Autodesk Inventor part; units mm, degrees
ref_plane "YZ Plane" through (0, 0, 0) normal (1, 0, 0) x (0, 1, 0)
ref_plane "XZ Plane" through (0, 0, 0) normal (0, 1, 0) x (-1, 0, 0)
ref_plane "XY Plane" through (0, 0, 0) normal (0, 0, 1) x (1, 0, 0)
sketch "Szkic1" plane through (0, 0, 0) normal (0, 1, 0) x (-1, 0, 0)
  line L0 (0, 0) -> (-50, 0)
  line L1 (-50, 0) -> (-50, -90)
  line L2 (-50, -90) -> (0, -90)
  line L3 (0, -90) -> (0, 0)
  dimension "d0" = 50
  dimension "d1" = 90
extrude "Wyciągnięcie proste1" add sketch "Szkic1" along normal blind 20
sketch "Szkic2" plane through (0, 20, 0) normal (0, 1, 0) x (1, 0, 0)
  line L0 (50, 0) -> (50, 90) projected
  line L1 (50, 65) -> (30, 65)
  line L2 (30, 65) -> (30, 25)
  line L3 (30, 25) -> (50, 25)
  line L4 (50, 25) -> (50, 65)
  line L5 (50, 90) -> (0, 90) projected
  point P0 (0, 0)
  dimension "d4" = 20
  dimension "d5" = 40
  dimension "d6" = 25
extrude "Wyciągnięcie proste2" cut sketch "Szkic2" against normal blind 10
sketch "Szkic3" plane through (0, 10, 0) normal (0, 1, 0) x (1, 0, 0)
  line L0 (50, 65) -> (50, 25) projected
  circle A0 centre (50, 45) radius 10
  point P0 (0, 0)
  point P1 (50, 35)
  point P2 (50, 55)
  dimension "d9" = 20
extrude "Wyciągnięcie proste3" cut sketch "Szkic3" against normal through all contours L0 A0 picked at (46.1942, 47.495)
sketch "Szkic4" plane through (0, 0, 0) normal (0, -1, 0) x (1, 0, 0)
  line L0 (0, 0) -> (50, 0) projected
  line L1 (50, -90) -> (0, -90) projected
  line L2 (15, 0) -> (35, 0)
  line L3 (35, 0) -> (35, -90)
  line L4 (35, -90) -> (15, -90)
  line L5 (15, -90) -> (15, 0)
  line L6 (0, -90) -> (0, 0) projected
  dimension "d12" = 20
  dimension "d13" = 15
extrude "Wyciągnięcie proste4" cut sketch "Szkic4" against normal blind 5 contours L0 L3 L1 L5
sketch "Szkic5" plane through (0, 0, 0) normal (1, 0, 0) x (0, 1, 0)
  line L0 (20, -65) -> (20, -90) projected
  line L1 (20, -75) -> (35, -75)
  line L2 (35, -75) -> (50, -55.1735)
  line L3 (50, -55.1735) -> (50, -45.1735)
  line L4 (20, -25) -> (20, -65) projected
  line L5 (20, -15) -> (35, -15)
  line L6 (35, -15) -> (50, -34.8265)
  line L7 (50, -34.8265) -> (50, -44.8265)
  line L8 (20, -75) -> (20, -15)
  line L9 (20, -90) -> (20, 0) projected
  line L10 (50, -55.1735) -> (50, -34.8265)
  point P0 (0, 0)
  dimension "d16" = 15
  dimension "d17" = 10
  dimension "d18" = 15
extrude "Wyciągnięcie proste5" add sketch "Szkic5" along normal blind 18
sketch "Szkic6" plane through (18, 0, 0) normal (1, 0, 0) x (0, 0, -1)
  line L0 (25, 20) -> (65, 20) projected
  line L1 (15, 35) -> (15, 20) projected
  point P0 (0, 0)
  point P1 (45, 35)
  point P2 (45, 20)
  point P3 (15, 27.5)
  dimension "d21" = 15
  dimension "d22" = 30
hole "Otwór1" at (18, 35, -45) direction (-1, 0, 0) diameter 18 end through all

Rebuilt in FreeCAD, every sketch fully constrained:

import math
import FreeCAD as App
import Part
import Sketcher
Q = App.Units.Quantity


def add_polygon(sketch, points):
    """Adds a closed chain of lines whose ends are joined by coincident constraints."""
    first, n = sketch.GeometryCount, len(points)
    for a, b in zip(points, points[1:] + points[:1]):
        sketch.addGeometry(Part.LineSegment(App.Vector(*a, 0), App.Vector(*b, 0)), False)
    for i in range(n):
        sketch.addConstraint(Sketcher.Constraint("Coincident", first + i, 2, first + (i + 1) % n, 1))

doc = App.newDocument("Part")
body = doc.addObject("PartDesign::Body", "Body")

# Sketch on XZ plane
sketch1 = body.newObject("Sketcher::SketchObject", "Sketch")
sketch1.AttachmentSupport = (doc.getObject("XZ_Plane"), [""])
sketch1.MapMode = "FlatFace"
add_polygon(sketch1, [(0, -90), (0, 0), (50, 0), (50, -90)])  # lines 0-3
sketch1.addConstraint([
    Sketcher.Constraint("Vertical", 0),
    Sketcher.Constraint("Horizontal", 1),
    Sketcher.Constraint("Vertical", 2),
    Sketcher.Constraint("Horizontal", 3),
    Sketcher.Constraint("Coincident", 0, 2, -1, 1),
    Sketcher.Constraint("DistanceX", 1, 1, 1, 2, 50.0),
    Sketcher.Constraint("DistanceY", 0, 1, 0, 2, 90.0),
])
pad1 = body.newObject("PartDesign::Pad", "Pad")
pad1.Profile = sketch1
pad1.Length = 20
pad1.Reversed = True

# Sketch on XZ plane
sketch2 = body.newObject("Sketcher::SketchObject", "Sketch001")
sketch2.AttachmentSupport = (doc.getObject("XZ_Plane"), [""])
sketch2.MapMode = "FlatFace"
sketch2.AttachmentOffset = App.Placement(App.Vector(0, 0, -20), App.Rotation())
add_polygon(sketch2, [(30, -25), (50, -25), (50, -65), (30, -65)])  # lines 0-3
sketch2.addConstraint([
    Sketcher.Constraint("Horizontal", 0),
    Sketcher.Constraint("Vertical", 1),
    Sketcher.Constraint("Horizontal", 2),
    Sketcher.Constraint("Vertical", 3),
    Sketcher.Constraint("DistanceX", 0, 1, 0, 2, 20.0),
    Sketcher.Constraint("DistanceY", 1, 2, 1, 1, 40.0),
    Sketcher.Constraint("DistanceY", 0, 2, -1, 1, 25.0),
    Sketcher.Constraint("DistanceX", -1, 1, 0, 2, 50.0),
])
pocket1 = body.newObject("PartDesign::Pocket", "Pocket")
pocket1.Profile = sketch2
pocket1.Length = 10
pocket1.Reversed = True

# Sketch on XZ plane
sketch3 = body.newObject("Sketcher::SketchObject", "Sketch002")
sketch3.AttachmentSupport = (doc.getObject("XZ_Plane"), [""])
sketch3.MapMode = "FlatFace"
sketch3.AttachmentOffset = App.Placement(App.Vector(0, 0, -10), App.Rotation())
sketch3.addGeometry([
    Part.LineSegment(App.Vector(50, -35, 0), App.Vector(50, -55, 0)),
    Part.ArcOfCircle(Part.Circle(App.Vector(50, -45, 0), App.Vector(0, 0, 1), 10), math.radians(90), math.radians(270)),
], False)
sketch3.addConstraint([
    Sketcher.Constraint("Coincident", 0, 1, 1, 1),
    Sketcher.Constraint("Coincident", 1, 2, 0, 2),
    Sketcher.Constraint("Vertical", 0),
    Sketcher.Constraint("Vertical", 1, 3, 0, 1),
    Sketcher.Constraint("Radius", 1, 10.0),
    Sketcher.Constraint("DistanceX", -1, 1, 1, 3, 50.0),
    Sketcher.Constraint("DistanceY", 1, 3, -1, 1, 45.0),
])
pocket2 = body.newObject("PartDesign::Pocket", "Pocket001")
pocket2.Profile = sketch3
pocket2.Type = "ThroughAll"
pocket2.Reversed = True

# Sketch on XZ plane
sketch4 = body.newObject("Sketcher::SketchObject", "Sketch003")
sketch4.AttachmentSupport = (doc.getObject("XZ_Plane"), [""])
sketch4.MapMode = "FlatFace"
add_polygon(sketch4, [(35, 0), (15, 0), (15, -90), (35, -90)])  # lines 0-3
sketch4.addConstraint([
    Sketcher.Constraint("Horizontal", 0),
    Sketcher.Constraint("Vertical", 1),
    Sketcher.Constraint("Horizontal", 2),
    Sketcher.Constraint("Vertical", 3),
    Sketcher.Constraint("PointOnObject", 0, 2, -1),
    Sketcher.Constraint("DistanceX", 0, 2, 0, 1, 20.0),
    Sketcher.Constraint("DistanceX", -1, 1, 0, 2, 15.0),
    Sketcher.Constraint("DistanceY", 1, 2, 1, 1, 90.0),
])
pocket3 = body.newObject("PartDesign::Pocket", "Pocket002")
pocket3.Profile = sketch4
pocket3.Length = 5

# Sketch on YZ plane
sketch5 = body.newObject("Sketcher::SketchObject", "Sketch004")
sketch5.AttachmentSupport = (doc.getObject("YZ_Plane"), [""])
sketch5.MapMode = "FlatFace"
add_polygon(sketch5, [(20, -15), (20, -75), (35, -75), (50, -55), (50, -35), (35, -15)])  # lines 0-5
sketch5.addConstraint([
    Sketcher.Constraint("Vertical", 0),
    Sketcher.Constraint("Horizontal", 1),
    Sketcher.Constraint("Vertical", 3),
    Sketcher.Constraint("Horizontal", 5),
    Sketcher.Constraint("Vertical", 1, 2, 4, 2),
    Sketcher.Constraint("Equal", 2, 4),
    Sketcher.Constraint("DistanceX", 1, 1, 1, 2, 15.0),
    Sketcher.Constraint("DistanceY", 4, 2, -1, 1, 15.0),
    Sketcher.Constraint("DistanceX", 1, 2, 2, 2, 15.0),
    Sketcher.Constraint("DistanceY", 0, 2, 0, 1, 60.0),
    Sketcher.Constraint("DistanceX", -1, 1, 0, 2, 20.0),
    Sketcher.Constraint("Angle", 2, Q("52.8902 deg")),
])
pad2 = body.newObject("PartDesign::Pad", "Pad001")
pad2.Profile = sketch5
pad2.Length = 18

# Sketch on YZ plane
sketch6 = body.newObject("Sketcher::SketchObject", "Sketch005")
sketch6.AttachmentSupport = (doc.getObject("YZ_Plane"), [""])
sketch6.MapMode = "FlatFace"
sketch6.AttachmentOffset = App.Placement(App.Vector(0, 0, 18), App.Rotation())
sketch6.addGeometry(Part.Circle(App.Vector(35, -45, 0), App.Vector(0, 0, 1), 9), False)
sketch6.addConstraint([
    Sketcher.Constraint("Diameter", 0, 18.0),
    Sketcher.Constraint("DistanceX", -1, 1, 0, 3, 35.0),
    Sketcher.Constraint("DistanceY", 0, 3, -1, 1, 45.0),
])
doc.recompute()
hole = body.newObject("PartDesign::Hole", "Hole")
hole.Profile = sketch6
hole.ThreadType = "None"
hole.Diameter = 18
hole.DepthType = "ThroughAll"

doc.recompute()
